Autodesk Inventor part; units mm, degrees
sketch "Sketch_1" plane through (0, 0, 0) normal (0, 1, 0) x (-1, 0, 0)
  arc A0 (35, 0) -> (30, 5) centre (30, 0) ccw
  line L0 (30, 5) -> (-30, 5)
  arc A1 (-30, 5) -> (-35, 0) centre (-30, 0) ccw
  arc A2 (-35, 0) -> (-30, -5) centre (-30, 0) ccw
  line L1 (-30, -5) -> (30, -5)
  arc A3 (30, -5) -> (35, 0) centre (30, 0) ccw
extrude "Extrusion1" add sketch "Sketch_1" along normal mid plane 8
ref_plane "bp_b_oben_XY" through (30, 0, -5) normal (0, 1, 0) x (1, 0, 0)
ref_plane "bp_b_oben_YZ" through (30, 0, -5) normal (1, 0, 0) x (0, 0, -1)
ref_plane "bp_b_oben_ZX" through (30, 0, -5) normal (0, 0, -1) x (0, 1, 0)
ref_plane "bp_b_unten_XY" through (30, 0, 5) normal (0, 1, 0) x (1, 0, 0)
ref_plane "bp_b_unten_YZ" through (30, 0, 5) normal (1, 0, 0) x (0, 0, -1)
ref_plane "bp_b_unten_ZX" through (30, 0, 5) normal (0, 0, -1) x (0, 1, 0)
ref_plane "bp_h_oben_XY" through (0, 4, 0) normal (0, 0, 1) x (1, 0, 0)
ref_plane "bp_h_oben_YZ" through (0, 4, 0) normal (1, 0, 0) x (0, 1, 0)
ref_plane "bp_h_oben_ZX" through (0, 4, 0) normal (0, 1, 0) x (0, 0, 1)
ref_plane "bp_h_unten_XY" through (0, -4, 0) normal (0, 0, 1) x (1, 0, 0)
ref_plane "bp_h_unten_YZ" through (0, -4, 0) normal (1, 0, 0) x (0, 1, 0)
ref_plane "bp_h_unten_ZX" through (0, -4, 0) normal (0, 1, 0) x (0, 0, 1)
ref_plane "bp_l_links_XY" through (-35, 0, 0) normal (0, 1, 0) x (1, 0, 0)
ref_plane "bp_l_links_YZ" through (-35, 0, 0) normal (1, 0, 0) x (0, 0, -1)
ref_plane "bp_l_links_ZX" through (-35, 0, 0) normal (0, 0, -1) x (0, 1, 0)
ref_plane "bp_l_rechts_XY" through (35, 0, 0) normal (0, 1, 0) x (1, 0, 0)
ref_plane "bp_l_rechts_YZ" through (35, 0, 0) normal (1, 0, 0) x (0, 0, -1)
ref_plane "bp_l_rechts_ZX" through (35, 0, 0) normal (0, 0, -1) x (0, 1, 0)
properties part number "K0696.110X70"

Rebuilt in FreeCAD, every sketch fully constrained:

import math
import FreeCAD as App
import Part
import Sketcher
Q = App.Units.Quantity

doc = App.newDocument("Part")
body = doc.addObject("PartDesign::Body", "Body")

# Sketch on XZ plane
sketch1 = body.newObject("Sketcher::SketchObject", "Sketch")
sketch1.AttachmentSupport = (doc.getObject("XZ_Plane"), [""])
sketch1.MapMode = "FlatFace"
sketch1.addGeometry([
    Part.ArcOfCircle(Part.Circle(App.Vector(-30, 0, 0), App.Vector(0, 0, 1), 5), math.radians(90), math.radians(270)),
    Part.LineSegment(App.Vector(-30, 5, 0), App.Vector(30, 5, 0)),
    Part.ArcOfCircle(Part.Circle(App.Vector(30, 0, 0), App.Vector(0, 0, 1), 5), math.radians(-90), math.radians(90)),
    Part.LineSegment(App.Vector(30, -5, 0), App.Vector(-30, -5, 0)),
], False)
sketch1.addConstraint([
    Sketcher.Constraint("Tangent", 0, 1, 1, 1),
    Sketcher.Constraint("Tangent", 1, 2, 2, 2),
    Sketcher.Constraint("Tangent", 2, 1, 3, 1),
    Sketcher.Constraint("Tangent", 3, 2, 0, 2),
    Sketcher.Constraint("Horizontal", 1),
    Sketcher.Constraint("Horizontal", 3),
    Sketcher.Constraint("Symmetric", 0, 3, 2, 3, -1, 1),
    Sketcher.Constraint("Radius", 0, Q("5 mm")),
    Sketcher.Constraint("DistanceX", 1, 1, 1, 2, Q("60 mm")),
])
pad1 = body.newObject("PartDesign::Pad", "Pad")
pad1.Profile = sketch1
pad1.Length = 8
pad1.Midplane = True

doc.recompute()
